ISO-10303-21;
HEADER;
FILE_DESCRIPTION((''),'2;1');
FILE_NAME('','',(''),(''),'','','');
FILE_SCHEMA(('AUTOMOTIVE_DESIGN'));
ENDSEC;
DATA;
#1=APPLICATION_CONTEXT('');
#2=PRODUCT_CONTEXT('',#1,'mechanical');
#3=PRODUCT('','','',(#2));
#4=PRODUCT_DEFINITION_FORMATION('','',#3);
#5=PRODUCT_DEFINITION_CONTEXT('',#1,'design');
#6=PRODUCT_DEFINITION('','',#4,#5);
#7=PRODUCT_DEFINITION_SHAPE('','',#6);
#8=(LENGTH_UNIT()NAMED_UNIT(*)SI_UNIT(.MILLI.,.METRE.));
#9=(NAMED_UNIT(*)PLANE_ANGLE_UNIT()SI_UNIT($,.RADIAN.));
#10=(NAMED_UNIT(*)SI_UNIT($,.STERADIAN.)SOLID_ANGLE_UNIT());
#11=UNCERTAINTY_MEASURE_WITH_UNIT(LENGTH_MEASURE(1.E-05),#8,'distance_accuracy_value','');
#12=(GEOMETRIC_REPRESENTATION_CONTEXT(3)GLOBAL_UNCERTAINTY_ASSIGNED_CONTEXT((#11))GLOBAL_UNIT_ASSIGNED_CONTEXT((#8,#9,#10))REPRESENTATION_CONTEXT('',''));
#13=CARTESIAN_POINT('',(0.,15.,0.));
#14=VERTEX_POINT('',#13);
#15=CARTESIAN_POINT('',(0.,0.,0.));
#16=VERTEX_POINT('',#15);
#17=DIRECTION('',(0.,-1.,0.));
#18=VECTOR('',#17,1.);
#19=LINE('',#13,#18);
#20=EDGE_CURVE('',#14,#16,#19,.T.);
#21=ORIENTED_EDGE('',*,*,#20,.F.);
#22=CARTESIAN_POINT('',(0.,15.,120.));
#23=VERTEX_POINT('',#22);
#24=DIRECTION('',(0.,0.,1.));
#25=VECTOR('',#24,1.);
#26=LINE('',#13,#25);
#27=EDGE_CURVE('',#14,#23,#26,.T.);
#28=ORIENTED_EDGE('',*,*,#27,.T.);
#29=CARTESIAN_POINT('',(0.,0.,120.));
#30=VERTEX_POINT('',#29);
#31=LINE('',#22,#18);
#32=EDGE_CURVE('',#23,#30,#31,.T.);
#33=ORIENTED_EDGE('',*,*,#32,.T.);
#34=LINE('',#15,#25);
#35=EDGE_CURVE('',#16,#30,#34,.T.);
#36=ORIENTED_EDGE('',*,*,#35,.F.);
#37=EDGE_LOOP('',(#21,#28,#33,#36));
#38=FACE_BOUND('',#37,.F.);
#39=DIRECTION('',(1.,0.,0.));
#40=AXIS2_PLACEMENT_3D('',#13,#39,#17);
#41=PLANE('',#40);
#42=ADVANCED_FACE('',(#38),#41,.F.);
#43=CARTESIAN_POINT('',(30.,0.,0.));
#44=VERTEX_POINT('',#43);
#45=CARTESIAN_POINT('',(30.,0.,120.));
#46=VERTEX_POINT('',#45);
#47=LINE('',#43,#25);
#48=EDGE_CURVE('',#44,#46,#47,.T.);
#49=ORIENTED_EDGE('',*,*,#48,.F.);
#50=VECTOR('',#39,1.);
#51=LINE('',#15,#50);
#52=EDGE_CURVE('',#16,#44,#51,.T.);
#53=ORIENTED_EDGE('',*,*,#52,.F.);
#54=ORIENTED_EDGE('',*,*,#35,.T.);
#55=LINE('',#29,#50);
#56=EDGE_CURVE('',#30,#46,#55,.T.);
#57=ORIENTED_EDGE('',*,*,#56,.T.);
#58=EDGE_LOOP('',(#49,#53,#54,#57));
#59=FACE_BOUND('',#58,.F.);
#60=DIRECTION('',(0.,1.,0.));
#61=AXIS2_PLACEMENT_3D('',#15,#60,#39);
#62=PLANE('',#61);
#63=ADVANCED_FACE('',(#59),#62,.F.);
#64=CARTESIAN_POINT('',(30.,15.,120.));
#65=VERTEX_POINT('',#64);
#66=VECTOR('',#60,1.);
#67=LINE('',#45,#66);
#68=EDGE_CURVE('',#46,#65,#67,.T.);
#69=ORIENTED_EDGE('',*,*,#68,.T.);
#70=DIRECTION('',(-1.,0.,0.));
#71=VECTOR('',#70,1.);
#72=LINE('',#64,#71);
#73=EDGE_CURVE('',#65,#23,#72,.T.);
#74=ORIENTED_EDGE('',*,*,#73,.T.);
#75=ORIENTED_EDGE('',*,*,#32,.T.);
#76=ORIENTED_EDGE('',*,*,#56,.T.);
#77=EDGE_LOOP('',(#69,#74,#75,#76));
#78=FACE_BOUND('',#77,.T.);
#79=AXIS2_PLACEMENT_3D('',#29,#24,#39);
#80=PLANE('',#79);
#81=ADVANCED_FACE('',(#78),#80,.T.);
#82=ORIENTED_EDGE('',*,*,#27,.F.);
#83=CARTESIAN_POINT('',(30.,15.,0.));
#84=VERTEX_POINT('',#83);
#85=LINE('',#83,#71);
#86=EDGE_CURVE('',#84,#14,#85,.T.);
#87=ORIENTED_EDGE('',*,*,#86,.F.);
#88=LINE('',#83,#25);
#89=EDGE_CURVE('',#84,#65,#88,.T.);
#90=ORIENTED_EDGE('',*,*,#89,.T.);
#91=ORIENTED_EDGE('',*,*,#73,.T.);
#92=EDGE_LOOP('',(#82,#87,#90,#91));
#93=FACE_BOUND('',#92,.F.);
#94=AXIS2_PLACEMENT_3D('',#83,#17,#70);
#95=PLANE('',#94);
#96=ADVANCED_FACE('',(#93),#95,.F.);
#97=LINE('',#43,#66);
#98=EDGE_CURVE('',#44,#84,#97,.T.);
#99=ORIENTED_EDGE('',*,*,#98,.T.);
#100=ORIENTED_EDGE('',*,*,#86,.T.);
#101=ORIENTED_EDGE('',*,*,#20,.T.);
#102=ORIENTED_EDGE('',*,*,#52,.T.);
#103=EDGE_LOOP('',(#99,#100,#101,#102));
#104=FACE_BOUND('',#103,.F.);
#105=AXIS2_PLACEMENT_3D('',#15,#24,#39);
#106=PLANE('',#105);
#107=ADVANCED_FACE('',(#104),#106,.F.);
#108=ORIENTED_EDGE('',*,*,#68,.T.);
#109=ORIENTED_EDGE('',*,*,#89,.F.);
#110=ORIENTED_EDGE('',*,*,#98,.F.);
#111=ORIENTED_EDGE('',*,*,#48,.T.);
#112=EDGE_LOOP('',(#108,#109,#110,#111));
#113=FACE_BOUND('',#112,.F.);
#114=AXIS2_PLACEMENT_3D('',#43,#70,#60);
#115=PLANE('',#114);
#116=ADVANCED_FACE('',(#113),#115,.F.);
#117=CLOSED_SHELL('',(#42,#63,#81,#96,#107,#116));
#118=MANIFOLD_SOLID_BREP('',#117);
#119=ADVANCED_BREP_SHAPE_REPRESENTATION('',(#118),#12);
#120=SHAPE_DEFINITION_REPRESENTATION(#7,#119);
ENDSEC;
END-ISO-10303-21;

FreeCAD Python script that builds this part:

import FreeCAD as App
import Part
import Sketcher

V = App.Vector
Q = App.Units.Quantity

doc = App.newDocument("Part")
body = doc.addObject("PartDesign::Body", "Body")

sketch1 = body.newObject("Sketcher::SketchObject", "Sketch")
sketch1.AttachmentSupport = (doc.getObject("XY_Plane"), [""])
sketch1.MapMode = "FlatFace"
sketch1.addGeometry([
    Part.LineSegment(V(0, 15, 0), V(0, 0, 0)),
    Part.LineSegment(V(0, 0, 0), V(30, 0, 0)),
    Part.LineSegment(V(30, 0, 0), V(30, 15, 0)),
    Part.LineSegment(V(30, 15, 0), V(0, 15, 0)),
], False)
sketch1.addConstraint([
    Sketcher.Constraint("Coincident", 0, 2, 1, 1),
    Sketcher.Constraint("Coincident", 1, 2, 2, 1),
    Sketcher.Constraint("Coincident", 2, 2, 3, 1),
    Sketcher.Constraint("Coincident", 3, 2, 0, 1),
    Sketcher.Constraint("Vertical", 0),
    Sketcher.Constraint("Horizontal", 1),
    Sketcher.Constraint("Vertical", 2),
    Sketcher.Constraint("Horizontal", 3),
    Sketcher.Constraint("Coincident", 0, 2, -1, 1),
    Sketcher.Constraint("DistanceX", 1, 1, 1, 2, Q("30 mm")),
    Sketcher.Constraint("DistanceY", 0, 2, 0, 1, Q("15 mm")),
])
pad1 = body.newObject("PartDesign::Pad", "Pad")
pad1.Profile = sketch1
pad1.Length = 120

doc.recompute()
